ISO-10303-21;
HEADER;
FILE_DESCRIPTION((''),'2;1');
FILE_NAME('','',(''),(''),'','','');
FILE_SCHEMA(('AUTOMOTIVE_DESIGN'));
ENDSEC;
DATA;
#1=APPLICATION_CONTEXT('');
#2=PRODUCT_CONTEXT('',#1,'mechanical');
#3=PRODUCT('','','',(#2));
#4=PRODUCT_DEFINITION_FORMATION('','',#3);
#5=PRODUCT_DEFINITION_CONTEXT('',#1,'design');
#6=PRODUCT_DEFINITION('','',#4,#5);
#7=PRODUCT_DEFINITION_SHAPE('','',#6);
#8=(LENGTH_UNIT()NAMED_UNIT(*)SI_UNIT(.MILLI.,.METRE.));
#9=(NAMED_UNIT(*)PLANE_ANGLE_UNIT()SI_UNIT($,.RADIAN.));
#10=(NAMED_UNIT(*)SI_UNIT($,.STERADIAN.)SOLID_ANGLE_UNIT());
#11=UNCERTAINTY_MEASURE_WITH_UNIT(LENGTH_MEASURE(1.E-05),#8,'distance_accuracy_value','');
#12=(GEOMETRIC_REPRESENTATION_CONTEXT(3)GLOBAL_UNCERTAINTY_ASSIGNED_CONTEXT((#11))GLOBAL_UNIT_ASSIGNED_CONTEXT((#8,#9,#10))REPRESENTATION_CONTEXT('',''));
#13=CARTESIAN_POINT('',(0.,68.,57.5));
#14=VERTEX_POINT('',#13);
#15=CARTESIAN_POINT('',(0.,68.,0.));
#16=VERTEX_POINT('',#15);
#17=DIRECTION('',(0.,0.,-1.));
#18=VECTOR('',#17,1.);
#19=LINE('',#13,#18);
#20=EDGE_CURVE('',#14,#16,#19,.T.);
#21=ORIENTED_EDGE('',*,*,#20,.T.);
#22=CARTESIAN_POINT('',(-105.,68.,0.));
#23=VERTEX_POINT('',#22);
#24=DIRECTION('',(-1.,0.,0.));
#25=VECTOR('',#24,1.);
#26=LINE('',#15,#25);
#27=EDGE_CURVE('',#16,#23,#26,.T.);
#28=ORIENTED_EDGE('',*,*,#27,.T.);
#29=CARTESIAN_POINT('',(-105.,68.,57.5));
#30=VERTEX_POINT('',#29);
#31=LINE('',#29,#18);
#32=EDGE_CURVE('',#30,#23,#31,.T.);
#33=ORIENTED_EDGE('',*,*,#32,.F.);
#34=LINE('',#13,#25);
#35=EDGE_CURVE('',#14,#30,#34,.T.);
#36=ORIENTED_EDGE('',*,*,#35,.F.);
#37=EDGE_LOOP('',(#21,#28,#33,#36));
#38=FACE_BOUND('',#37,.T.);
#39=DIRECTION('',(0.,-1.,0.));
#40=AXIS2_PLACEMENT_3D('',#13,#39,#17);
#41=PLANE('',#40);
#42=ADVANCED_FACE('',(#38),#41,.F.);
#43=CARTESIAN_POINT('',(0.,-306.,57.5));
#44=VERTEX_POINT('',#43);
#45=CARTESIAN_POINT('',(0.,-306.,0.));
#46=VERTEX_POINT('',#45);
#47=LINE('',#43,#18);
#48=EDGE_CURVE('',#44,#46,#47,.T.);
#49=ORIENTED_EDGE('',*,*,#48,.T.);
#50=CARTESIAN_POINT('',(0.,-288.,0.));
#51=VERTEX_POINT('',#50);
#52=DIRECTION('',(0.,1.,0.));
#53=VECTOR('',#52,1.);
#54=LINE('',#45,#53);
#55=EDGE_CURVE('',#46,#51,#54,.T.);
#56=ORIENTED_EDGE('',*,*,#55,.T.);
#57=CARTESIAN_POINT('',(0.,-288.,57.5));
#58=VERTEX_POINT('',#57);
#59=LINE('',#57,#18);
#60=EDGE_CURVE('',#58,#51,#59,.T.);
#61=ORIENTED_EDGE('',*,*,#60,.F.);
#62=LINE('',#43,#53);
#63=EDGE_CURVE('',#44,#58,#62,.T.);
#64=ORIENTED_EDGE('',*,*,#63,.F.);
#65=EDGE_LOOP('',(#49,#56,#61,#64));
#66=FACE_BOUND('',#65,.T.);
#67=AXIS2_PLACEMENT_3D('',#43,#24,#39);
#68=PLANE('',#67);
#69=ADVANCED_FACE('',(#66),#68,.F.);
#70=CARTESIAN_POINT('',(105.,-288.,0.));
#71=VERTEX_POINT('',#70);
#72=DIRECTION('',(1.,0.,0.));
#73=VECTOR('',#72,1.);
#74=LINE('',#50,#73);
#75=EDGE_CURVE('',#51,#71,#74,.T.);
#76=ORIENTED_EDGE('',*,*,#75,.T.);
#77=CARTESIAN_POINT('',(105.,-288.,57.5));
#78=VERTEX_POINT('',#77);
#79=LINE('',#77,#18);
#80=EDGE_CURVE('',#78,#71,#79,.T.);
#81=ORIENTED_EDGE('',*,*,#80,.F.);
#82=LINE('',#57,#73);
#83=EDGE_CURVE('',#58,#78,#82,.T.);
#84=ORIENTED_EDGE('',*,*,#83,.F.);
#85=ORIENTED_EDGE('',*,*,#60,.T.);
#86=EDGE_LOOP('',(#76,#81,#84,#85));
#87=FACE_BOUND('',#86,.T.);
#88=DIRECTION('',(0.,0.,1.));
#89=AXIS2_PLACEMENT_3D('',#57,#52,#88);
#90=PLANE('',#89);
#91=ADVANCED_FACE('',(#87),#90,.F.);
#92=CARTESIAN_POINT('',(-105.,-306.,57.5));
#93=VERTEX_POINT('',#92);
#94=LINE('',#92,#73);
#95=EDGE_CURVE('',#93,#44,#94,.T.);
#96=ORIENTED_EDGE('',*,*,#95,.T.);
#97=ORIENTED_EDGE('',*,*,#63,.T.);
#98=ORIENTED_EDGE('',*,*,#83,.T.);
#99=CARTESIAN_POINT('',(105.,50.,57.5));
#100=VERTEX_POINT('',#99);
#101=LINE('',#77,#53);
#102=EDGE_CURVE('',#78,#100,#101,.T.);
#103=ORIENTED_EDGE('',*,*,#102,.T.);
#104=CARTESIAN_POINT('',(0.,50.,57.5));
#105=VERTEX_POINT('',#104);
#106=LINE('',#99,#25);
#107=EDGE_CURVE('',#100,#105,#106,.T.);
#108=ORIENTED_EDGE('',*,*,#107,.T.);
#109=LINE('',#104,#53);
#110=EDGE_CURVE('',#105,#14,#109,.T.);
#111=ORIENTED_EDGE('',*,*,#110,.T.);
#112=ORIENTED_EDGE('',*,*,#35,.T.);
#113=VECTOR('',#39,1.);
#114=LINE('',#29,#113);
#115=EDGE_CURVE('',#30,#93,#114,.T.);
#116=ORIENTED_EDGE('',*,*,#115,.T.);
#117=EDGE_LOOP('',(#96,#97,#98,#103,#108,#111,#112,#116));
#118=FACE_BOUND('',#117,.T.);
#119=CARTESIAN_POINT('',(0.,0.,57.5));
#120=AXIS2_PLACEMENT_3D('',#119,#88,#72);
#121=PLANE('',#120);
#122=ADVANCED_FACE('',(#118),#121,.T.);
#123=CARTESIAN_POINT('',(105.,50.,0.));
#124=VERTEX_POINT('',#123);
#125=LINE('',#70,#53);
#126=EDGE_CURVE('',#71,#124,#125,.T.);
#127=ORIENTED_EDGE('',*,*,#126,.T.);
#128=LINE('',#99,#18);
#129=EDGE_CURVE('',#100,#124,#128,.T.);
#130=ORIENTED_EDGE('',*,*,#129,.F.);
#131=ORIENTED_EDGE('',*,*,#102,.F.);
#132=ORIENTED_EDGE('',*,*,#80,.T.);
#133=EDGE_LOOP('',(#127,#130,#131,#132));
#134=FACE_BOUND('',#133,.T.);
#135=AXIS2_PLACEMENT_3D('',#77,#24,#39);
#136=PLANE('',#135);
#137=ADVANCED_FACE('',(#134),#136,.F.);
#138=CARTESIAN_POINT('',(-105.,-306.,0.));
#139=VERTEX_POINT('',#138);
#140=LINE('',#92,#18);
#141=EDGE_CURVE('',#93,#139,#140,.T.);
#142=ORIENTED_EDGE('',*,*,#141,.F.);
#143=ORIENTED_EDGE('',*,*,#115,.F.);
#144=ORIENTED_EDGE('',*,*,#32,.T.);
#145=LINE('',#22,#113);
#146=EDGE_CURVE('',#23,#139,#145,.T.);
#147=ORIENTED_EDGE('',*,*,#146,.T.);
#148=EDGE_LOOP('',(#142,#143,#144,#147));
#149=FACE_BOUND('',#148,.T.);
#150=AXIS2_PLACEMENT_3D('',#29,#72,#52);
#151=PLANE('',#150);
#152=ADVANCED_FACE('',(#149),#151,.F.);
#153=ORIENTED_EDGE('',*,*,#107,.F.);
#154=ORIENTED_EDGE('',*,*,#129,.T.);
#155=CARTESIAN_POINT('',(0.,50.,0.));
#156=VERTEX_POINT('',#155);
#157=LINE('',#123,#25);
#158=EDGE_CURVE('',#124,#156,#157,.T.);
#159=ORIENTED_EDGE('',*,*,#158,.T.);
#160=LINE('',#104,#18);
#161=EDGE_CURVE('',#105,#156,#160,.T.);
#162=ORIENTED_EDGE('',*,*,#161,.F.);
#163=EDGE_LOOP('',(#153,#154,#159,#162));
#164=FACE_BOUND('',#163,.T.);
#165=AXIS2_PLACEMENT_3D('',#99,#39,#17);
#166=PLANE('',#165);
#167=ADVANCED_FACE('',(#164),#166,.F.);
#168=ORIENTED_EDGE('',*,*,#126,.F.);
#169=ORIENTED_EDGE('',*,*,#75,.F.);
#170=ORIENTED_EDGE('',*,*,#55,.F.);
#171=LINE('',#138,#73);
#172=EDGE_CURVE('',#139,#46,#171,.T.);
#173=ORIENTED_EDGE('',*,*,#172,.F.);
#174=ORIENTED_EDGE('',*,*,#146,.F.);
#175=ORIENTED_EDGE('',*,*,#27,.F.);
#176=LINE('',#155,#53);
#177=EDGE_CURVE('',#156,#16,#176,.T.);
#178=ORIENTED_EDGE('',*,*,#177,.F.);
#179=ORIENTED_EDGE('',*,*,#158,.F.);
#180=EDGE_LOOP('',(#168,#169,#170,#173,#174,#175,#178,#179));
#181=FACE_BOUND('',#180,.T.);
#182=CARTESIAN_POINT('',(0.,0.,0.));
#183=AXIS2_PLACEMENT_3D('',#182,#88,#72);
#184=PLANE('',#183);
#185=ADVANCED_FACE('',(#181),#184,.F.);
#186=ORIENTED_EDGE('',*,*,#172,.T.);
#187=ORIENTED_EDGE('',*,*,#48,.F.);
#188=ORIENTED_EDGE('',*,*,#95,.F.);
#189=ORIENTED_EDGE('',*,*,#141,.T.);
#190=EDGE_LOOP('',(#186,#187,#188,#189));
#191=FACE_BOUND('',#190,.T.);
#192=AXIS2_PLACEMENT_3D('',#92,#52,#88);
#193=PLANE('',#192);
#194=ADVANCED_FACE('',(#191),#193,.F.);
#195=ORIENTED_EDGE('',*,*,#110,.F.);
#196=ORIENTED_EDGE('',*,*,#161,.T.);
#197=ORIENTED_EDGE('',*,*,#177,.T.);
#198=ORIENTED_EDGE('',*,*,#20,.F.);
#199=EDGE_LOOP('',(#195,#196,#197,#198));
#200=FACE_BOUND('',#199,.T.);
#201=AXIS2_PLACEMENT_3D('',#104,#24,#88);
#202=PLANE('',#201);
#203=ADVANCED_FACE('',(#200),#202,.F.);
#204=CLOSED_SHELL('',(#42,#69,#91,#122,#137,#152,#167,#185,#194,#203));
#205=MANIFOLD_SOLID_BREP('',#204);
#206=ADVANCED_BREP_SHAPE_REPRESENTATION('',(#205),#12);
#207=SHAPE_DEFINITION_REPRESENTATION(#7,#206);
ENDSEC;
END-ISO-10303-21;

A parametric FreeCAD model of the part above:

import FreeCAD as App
import Part
import Sketcher
from FreeCAD import Vector
Q = App.Units.Quantity


def add_polygon(sketch, points):
    """Adds a closed chain of lines whose ends are joined by coincident constraints."""
    first, n = sketch.GeometryCount, len(points)
    for a, b in zip(points, points[1:] + points[:1]):
        sketch.addGeometry(Part.LineSegment(App.Vector(*a, 0), App.Vector(*b, 0)), False)
    for i in range(n):
        sketch.addConstraint(Sketcher.Constraint("Coincident", first + i, 2, first + (i + 1) % n, 1))

doc = App.newDocument("Part")
body = doc.addObject("PartDesign::Body", "Body")

sketch1 = body.newObject("Sketcher::SketchObject", "Sketch")
sketch1.AttachmentSupport = (doc.getObject("XY_Plane"), [""])
sketch1.MapMode = "FlatFace"
add_polygon(sketch1, [(-105, 68), (-105, -306), (0, -306), (0, -288), (105, -288), (105, 50), (0, 50), (0, 68)])
sketch1.addConstraint([
    Sketcher.Constraint("Vertical", 0),
    Sketcher.Constraint("Horizontal", 1),
    Sketcher.Constraint("Vertical", 2),
    Sketcher.Constraint("Horizontal", 3),
    Sketcher.Constraint("Vertical", 4),
    Sketcher.Constraint("Horizontal", 5),
    Sketcher.Constraint("Vertical", 6),
    Sketcher.Constraint("Horizontal", 7),
    Sketcher.Constraint("PointOnObject", 1, 2, -2),
    Sketcher.Constraint("PointOnObject", 5, 2, -2),
    Sketcher.Constraint("Equal", 1, 3),
    Sketcher.Constraint("Equal", 2, 6),
    Sketcher.Constraint("DistanceX", 1, 1, 1, 2, Q("105 mm")),
    Sketcher.Constraint("DistanceY", 0, 2, 0, 1, Q("374 mm")),
    Sketcher.Constraint("DistanceY", 2, 1, 2, 2, Q("18 mm")),
    Sketcher.Constraint("DistanceY", 0, 2, -1, 1, Q("306 mm")),
])
pad1 = body.newObject("PartDesign::Pad", "Pad")
pad1.Profile = sketch1
pad1.Length = 57.5

doc.recompute()
